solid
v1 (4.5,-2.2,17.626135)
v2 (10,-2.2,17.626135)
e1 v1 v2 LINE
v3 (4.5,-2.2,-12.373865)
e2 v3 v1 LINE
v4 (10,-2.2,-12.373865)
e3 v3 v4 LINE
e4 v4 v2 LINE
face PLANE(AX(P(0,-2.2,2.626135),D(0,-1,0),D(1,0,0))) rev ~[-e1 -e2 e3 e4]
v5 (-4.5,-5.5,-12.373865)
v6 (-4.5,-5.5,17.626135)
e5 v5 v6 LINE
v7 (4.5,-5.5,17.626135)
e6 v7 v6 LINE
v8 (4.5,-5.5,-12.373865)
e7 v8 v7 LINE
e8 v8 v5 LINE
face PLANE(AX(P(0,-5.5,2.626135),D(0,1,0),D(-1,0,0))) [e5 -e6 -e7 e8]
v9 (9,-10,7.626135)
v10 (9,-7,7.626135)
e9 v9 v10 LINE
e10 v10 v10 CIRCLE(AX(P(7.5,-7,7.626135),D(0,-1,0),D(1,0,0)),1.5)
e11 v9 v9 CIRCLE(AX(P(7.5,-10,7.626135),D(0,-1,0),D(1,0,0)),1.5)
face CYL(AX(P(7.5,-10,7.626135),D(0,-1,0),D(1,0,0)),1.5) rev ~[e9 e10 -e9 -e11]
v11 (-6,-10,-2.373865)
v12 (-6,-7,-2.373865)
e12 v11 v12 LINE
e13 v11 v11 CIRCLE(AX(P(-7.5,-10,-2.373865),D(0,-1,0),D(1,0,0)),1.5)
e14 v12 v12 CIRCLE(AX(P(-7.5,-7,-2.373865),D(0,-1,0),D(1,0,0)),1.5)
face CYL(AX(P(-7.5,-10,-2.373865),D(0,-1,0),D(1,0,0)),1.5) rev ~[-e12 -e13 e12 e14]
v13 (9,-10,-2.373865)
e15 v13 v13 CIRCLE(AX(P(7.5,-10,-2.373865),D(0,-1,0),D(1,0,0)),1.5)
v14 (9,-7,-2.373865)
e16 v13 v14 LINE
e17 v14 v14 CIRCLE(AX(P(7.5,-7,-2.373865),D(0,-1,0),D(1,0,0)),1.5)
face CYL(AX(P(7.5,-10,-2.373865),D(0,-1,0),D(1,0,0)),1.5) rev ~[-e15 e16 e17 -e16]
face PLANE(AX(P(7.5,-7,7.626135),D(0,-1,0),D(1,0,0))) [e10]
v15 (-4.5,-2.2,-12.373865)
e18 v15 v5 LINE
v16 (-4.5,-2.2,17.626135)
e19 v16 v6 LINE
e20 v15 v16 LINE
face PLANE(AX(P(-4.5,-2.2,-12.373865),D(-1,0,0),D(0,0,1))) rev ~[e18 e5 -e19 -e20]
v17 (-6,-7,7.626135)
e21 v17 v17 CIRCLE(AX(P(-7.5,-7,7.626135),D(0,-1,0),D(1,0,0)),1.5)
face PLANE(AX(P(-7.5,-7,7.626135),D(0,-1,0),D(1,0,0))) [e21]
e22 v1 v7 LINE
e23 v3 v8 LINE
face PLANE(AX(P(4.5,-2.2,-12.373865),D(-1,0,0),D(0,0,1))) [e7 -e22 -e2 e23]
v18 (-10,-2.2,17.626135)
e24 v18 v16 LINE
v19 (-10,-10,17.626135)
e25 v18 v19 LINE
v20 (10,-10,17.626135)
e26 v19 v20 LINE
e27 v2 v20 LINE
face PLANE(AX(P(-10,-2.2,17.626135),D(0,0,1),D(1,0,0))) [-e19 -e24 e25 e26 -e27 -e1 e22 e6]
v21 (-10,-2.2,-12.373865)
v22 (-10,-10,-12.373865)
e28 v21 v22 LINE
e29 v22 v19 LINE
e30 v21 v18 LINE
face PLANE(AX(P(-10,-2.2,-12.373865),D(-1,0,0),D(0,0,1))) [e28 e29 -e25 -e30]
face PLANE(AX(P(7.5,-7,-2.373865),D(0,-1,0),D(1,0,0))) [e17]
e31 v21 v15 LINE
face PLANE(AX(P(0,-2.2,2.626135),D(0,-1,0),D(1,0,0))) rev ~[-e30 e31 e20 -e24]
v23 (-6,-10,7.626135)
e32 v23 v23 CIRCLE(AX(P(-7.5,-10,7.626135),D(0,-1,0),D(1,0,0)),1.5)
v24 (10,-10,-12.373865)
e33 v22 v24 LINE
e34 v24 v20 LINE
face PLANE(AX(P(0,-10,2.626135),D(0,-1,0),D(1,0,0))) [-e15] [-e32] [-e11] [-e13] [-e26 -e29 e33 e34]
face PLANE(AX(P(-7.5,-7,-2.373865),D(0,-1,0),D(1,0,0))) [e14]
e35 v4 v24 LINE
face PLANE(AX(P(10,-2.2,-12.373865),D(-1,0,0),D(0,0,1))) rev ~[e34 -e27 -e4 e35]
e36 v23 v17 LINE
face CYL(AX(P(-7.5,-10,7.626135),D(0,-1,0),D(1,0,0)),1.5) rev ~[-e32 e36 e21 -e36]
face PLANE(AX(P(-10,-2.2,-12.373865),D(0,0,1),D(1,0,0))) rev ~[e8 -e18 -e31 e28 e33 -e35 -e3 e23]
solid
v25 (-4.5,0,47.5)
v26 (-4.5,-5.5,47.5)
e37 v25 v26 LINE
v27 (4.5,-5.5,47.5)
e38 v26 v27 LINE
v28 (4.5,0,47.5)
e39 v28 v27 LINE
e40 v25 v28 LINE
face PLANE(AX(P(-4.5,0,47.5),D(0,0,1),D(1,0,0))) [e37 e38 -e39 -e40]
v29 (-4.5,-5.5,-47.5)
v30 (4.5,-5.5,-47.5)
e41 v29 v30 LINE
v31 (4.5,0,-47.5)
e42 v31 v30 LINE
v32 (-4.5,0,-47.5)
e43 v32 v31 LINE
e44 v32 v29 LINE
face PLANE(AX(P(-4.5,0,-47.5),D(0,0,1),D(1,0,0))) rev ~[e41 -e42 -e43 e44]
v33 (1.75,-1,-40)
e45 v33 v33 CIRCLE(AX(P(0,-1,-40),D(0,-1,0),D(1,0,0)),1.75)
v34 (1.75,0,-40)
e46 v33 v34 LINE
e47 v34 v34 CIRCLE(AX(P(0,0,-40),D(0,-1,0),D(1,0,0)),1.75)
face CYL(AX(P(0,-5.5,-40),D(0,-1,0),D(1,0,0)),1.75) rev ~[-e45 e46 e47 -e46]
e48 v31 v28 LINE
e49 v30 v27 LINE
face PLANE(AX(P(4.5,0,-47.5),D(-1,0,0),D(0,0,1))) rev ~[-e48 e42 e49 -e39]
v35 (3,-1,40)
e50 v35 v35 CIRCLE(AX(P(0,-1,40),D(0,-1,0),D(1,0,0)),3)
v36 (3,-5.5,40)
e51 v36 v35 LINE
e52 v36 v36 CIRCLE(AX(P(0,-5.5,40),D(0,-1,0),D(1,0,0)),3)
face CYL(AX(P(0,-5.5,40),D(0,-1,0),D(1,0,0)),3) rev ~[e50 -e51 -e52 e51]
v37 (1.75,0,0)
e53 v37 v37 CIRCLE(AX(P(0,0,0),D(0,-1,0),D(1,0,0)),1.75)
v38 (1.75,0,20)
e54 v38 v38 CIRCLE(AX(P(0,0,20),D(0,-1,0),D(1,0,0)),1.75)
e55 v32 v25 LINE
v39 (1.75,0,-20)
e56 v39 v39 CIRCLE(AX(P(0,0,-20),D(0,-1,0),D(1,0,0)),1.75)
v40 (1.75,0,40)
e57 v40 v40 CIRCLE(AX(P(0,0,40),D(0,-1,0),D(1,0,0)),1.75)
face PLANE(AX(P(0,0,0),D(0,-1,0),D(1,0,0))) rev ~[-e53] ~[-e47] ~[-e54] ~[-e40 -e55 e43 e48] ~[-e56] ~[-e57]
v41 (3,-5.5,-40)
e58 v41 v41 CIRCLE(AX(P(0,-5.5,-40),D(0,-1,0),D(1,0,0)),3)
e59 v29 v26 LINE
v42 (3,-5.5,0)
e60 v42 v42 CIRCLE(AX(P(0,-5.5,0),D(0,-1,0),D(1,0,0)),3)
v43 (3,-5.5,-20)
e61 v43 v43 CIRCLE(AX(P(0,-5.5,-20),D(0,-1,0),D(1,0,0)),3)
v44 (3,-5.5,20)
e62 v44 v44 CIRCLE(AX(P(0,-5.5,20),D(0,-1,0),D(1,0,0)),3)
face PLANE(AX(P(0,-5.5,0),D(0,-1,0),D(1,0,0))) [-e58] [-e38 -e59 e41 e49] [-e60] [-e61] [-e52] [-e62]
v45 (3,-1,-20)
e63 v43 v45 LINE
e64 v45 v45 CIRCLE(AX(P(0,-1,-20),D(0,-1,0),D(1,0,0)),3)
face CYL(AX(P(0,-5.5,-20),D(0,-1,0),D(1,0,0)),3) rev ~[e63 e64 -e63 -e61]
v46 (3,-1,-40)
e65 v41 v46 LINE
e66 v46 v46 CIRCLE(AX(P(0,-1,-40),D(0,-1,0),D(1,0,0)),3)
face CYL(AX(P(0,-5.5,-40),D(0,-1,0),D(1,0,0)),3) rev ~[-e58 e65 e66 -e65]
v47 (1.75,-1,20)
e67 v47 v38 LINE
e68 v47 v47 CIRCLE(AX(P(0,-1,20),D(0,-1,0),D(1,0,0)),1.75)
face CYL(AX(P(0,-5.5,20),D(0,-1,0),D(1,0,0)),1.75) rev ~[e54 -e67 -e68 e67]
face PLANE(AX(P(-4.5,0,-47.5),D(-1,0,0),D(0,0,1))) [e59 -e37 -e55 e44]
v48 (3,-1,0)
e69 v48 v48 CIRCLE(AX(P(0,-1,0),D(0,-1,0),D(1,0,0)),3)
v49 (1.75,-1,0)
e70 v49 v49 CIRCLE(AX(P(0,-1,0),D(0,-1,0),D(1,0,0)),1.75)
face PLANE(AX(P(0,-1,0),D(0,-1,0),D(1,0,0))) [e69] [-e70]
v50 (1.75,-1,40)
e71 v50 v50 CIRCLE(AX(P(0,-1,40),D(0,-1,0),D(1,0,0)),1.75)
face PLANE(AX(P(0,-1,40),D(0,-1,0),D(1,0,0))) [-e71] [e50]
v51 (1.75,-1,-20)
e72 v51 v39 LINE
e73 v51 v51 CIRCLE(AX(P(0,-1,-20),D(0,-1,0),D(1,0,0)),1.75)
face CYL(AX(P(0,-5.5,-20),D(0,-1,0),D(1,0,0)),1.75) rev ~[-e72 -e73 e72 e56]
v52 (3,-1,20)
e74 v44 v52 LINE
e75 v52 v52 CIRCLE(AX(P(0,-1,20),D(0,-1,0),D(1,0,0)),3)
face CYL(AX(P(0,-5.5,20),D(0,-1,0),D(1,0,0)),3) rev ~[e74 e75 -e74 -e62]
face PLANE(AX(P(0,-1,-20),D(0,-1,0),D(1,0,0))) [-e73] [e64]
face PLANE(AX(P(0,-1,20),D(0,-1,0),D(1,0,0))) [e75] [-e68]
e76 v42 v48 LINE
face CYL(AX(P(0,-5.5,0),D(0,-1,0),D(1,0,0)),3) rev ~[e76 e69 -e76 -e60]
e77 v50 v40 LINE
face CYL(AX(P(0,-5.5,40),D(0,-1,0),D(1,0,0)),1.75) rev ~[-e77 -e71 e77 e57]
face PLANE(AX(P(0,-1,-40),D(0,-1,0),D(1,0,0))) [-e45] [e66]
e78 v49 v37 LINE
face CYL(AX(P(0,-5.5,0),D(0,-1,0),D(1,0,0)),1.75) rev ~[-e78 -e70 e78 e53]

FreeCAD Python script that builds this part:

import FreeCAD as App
import Part
import Sketcher

V = App.Vector
Q = App.Units.Quantity


def add_polygon(sketch, points):
    """Adds a closed chain of lines whose ends are joined by coincident constraints."""
    first, n = sketch.GeometryCount, len(points)
    for a, b in zip(points, points[1:] + points[:1]):
        sketch.addGeometry(Part.LineSegment(App.Vector(*a, 0), App.Vector(*b, 0)), False)
    for i in range(n):
        sketch.addConstraint(Sketcher.Constraint("Coincident", first + i, 2, first + (i + 1) % n, 1))

doc = App.newDocument("Part")
body = doc.addObject("PartDesign::Body", "Body")

# Sketch on XZ plane
sketch1 = body.newObject("Sketcher::SketchObject", "Sketch")
sketch1.AttachmentSupport = (doc.getObject("XZ_Plane"), [""])
sketch1.MapMode = "FlatFace"
add_polygon(sketch1, [(-4, 48), (-4, -48), (4, -48), (4, 48)])  # lines 0-3
sketch1.addConstraint([
    Sketcher.Constraint("Vertical", 0),
    Sketcher.Constraint("Horizontal", 1),
    Sketcher.Constraint("Vertical", 2),
    Sketcher.Constraint("Horizontal", 3),
    Sketcher.Constraint("Symmetric", 0, 2, 2, 2, -1, 1),
    Sketcher.Constraint("DistanceX", 1, 1, 1, 2, Q("9 mm")),
    Sketcher.Constraint("DistanceY", 0, 2, 0, 1, Q("95 mm")),
])
pad1 = body.newObject("PartDesign::Pad", "Pad")
pad1.Profile = sketch1
pad1.Length = 5.5

# Sketch on XZ plane
sketch2 = body.newObject("Sketcher::SketchObject", "Sketch001")
sketch2.AttachmentSupport = (doc.getObject("XZ_Plane"), [""])
sketch2.MapMode = "FlatFace"
sketch2.AttachmentOffset = App.Placement(V(0, 0, 5.5), App.Rotation())
sketch2.addGeometry([
    Part.Circle(V(0, 20, 0), V(0, 0, 1), 1.8),  # 0
    Part.Circle(V(0, 40, 0), V(0, 0, 1), 1.8),  # 1
    Part.Circle(V(0, 0, 0), V(0, 0, 1), 1.8),  # 2
    Part.Circle(V(0, -20, 0), V(0, 0, 1), 1.8),  # 3
    Part.Circle(V(0, -40, 0), V(0, 0, 1), 1.8),  # 4
], False)
sketch2.addConstraint([
    Sketcher.Constraint("Coincident", 2, 3, -1, 1),
    Sketcher.Constraint("Equal", 0, 1),
    Sketcher.Constraint("Equal", 1, 2),
    Sketcher.Constraint("Equal", 2, 3),
    Sketcher.Constraint("Equal", 3, 4),
    Sketcher.Constraint("Symmetric", 0, 3, 3, 3, -1, 1),
    Sketcher.Constraint("Symmetric", 1, 3, 4, 3, -1, 1),
    Sketcher.Constraint("PointOnObject", 0, 3, -2),
    Sketcher.Constraint("PointOnObject", 1, 3, -2),
    Sketcher.Constraint("Diameter", 0, Q("3.5 mm")),
    Sketcher.Constraint("DistanceY", -1, 1, 0, 3, Q("20 mm")),
    Sketcher.Constraint("DistanceY", -1, 1, 1, 3, Q("40 mm")),
])
pocket1 = body.newObject("PartDesign::Pocket", "Pocket")
pocket1.Profile = sketch2
pocket1.Type = "ThroughAll"

# Sketch on XZ plane
sketch3 = body.newObject("Sketcher::SketchObject", "Sketch002")
sketch3.AttachmentSupport = (doc.getObject("XZ_Plane"), [""])
sketch3.MapMode = "FlatFace"
sketch3.AttachmentOffset = App.Placement(V(0, 0, 5.5), App.Rotation())
sketch3.addGeometry([
    Part.Circle(V(0, 40, 0), V(0, 0, 1), 3),  # 0
    Part.Circle(V(0, 40, 0), V(0, 0, 1), 1.8),  # 1
    Part.Circle(V(0, 20, 0), V(0, 0, 1), 3),  # 2
    Part.Circle(V(0, 20, 0), V(0, 0, 1), 1.8),  # 3
    Part.Circle(V(0, 0, 0), V(0, 0, 1), 3),  # 4
    Part.Circle(V(0, 0, 0), V(0, 0, 1), 1.8),  # 5
    Part.Circle(V(0, -20, 0), V(0, 0, 1), 3),  # 6
    Part.Circle(V(0, -20, 0), V(0, 0, 1), 1.8),  # 7
    Part.Circle(V(0, -40, 0), V(0, 0, 1), 3),  # 8
    Part.Circle(V(0, -40, 0), V(0, 0, 1), 1.8),  # 9
], False)
sketch3.addConstraint([
    Sketcher.Constraint("Coincident", 4, 3, -1, 1),
    Sketcher.Constraint("Coincident", 5, 3, -1, 1),
    Sketcher.Constraint("Coincident", 1, 3, 0, 3),
    Sketcher.Constraint("Coincident", 3, 3, 2, 3),
    Sketcher.Constraint("Coincident", 7, 3, 6, 3),
    Sketcher.Constraint("Coincident", 9, 3, 8, 3),
    Sketcher.Constraint("Equal", 0, 2),
    Sketcher.Constraint("Equal", 1, 3),
    Sketcher.Constraint("Equal", 2, 4),
    Sketcher.Constraint("Equal", 3, 5),
    Sketcher.Constraint("Equal", 4, 6),
    Sketcher.Constraint("Equal", 5, 7),
    Sketcher.Constraint("Equal", 6, 8),
    Sketcher.Constraint("Equal", 7, 9),
    Sketcher.Constraint("Symmetric", 2, 3, 6, 3, -1, 1),
    Sketcher.Constraint("Symmetric", 0, 3, 8, 3, -1, 1),
    Sketcher.Constraint("PointOnObject", 0, 3, -2),
    Sketcher.Constraint("PointOnObject", 2, 3, -2),
    Sketcher.Constraint("Diameter", 0, Q("6 mm")),
    Sketcher.Constraint("Diameter", 1, Q("3.5 mm")),
    Sketcher.Constraint("DistanceY", -1, 1, 0, 3, Q("40 mm")),
    Sketcher.Constraint("DistanceY", -1, 1, 2, 3, Q("20 mm")),
])
pocket2 = body.newObject("PartDesign::Pocket", "Pocket001")
pocket2.Profile = sketch3
pocket2.Length = 4.5
body2 = doc.addObject("PartDesign::Body", "Body001")

# Sketch on XZ plane
sketch4 = body2.newObject("Sketcher::SketchObject", "Sketch003")
sketch4.AttachmentSupport = (doc.getObject("XZ_Plane001"), [""])
sketch4.MapMode = "FlatFace"
sketch4.AttachmentOffset = App.Placement(V(0, 0, 2.2), App.Rotation())
add_polygon(sketch4, [(-10, 18), (-10, -12), (10, -12), (10, 18)])  # lines 0-3
sketch4.addConstraint([
    Sketcher.Constraint("Vertical", 0),
    Sketcher.Constraint("Horizontal", 1),
    Sketcher.Constraint("Vertical", 2),
    Sketcher.Constraint("Horizontal", 3),
    Sketcher.Constraint("DistanceX", 1, 1, 1, 2, Q("20 mm")),
    Sketcher.Constraint("DistanceY", 0, 2, 0, 1, Q("30 mm")),
    Sketcher.Constraint("DistanceX", 0, 2, -1, 1, Q("10 mm")),
    Sketcher.Constraint("DistanceY", 0, 2, -1, 1, Q("12.373865 mm")),
])
pad2 = body2.newObject("PartDesign::Pad", "Pad001")
pad2.Profile = sketch4
pad2.Length = 7.8

# Sketch on XZ plane
sketch5 = body2.newObject("Sketcher::SketchObject", "Sketch004")
sketch5.AttachmentSupport = (doc.getObject("XZ_Plane001"), [""])
sketch5.MapMode = "FlatFace"
sketch5.AttachmentOffset = App.Placement(V(0, 0, 2.2), App.Rotation())
add_polygon(sketch5, [(4, 18), (4, -12), (-4, -12), (-4, 18)])  # lines 0-3
sketch5.addConstraint([
    Sketcher.Constraint("Vertical", 0),
    Sketcher.Constraint("Horizontal", 1),
    Sketcher.Constraint("Vertical", 2),
    Sketcher.Constraint("Horizontal", 3),
    Sketcher.Constraint("DistanceX", 1, 2, 1, 1, Q("9 mm")),
    Sketcher.Constraint("DistanceY", 0, 2, 0, 1, Q("30 mm")),
    Sketcher.Constraint("DistanceX", -1, 1, 0, 2, Q("4.5 mm")),
    Sketcher.Constraint("DistanceY", 0, 2, -1, 1, Q("12.373865 mm")),
])
pocket3 = body2.newObject("PartDesign::Pocket", "Pocket002")
pocket3.Profile = sketch5
pocket3.Length = 3.3
pocket3.Reversed = True

# Sketch on XZ plane
sketch6 = body2.newObject("Sketcher::SketchObject", "Sketch005")
sketch6.AttachmentSupport = (doc.getObject("XZ_Plane001"), [""])
sketch6.MapMode = "FlatFace"
sketch6.AttachmentOffset = App.Placement(V(0, 0, 10), App.Rotation())
sketch6.addGeometry([
    Part.Circle(V(-7.5, 7.6, 0), V(0, 0, 1), 1.5),
    Part.Circle(V(7.5, 7.6, 0), V(0, 0, 1), 1.5),
    Part.Circle(V(7.5, -2.4, 0), V(0, 0, 1), 1.5),
    Part.Circle(V(-7.5, -2.4, 0), V(0, 0, 1), 1.5),
], False)
sketch6.addConstraint([
    Sketcher.Constraint("Equal", 0, 1),
    Sketcher.Constraint("Equal", 1, 2),
    Sketcher.Constraint("Equal", 2, 3),
    Sketcher.Constraint("Symmetric", 0, 3, 1, 3, -2),
    Sketcher.Constraint("Symmetric", 2, 3, 3, 3, -2),
    Sketcher.Constraint("Vertical", 1, 3, 2, 3),
    Sketcher.Constraint("Diameter", 0, Q("3 mm")),
    Sketcher.Constraint("DistanceX", 0, 3, 1, 3, Q("15 mm")),
    Sketcher.Constraint("DistanceY", 2, 3, 1, 3, Q("10 mm")),
    Sketcher.Constraint("DistanceY", -1, 1, 0, 3, Q("7.626135 mm")),
])
pocket4 = body2.newObject("PartDesign::Pocket", "Pocket003")
pocket4.Profile = sketch6
pocket4.Length = 3

doc.recompute()
